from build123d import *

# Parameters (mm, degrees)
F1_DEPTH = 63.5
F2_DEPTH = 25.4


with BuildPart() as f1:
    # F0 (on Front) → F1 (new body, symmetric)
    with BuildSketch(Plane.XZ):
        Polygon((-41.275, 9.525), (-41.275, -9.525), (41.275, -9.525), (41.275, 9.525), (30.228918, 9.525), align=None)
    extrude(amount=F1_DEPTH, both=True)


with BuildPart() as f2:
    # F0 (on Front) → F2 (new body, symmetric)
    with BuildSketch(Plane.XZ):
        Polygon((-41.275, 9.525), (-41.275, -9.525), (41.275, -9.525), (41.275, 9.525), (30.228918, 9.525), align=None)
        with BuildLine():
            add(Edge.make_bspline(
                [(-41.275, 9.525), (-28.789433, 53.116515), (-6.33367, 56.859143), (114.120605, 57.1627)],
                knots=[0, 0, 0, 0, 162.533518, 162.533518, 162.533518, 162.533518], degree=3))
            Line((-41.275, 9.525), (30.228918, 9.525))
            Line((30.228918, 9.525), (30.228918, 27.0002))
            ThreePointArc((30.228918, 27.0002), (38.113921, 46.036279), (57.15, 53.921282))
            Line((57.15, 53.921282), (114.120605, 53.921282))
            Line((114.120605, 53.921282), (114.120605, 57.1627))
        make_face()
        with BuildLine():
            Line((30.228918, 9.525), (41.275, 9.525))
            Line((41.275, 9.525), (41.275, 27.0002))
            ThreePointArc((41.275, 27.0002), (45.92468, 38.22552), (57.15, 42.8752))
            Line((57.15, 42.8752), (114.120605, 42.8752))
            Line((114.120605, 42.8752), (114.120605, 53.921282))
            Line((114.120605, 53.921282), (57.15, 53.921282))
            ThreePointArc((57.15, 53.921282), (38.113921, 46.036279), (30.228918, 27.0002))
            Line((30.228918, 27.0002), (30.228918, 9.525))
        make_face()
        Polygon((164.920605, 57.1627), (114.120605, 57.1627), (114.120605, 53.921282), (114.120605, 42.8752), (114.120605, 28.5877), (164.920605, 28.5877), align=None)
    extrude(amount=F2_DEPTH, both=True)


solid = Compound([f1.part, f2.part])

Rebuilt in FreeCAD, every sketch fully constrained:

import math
import FreeCAD as App
import Part
import Sketcher

V = App.Vector
Q = App.Units.Quantity

doc = App.newDocument("Part")
params = doc.addObject("Spreadsheet::Sheet", "Params")
for row, (alias, value) in enumerate([
    ("sketch1_width", "3.25 in"),
    ("sketch1_height", "0.75 in"),
    ("pad1_length", "5 in"),
    ("sketch2_width", "2 in"),
    ("sketch2_radius", "0.625 in"),
    ("sketch2_width2", "3.25 in"),
    ("sketch2_height", "0.75 in"),
    ("sketch2_height2", "1.438 in"),
    ("pad2_length", "2 in"),
], start=1):
    params.set(f"A{row}", alias)
    params.set(f"B{row}", "=" + value)
    params.setAlias(f"B{row}", alias)

body = doc.addObject("PartDesign::Body", "Body")

# Sketch on XZ plane
sketch1 = doc.addObject("Sketcher::SketchObject", "Sketch")
body.addObject(sketch1)
sketch1.AttachmentSupport = (doc.XZ_Plane, [""])
sketch1.MapMode = "FlatFace"
sketch1.addGeometry(Part.LineSegment(V(-41, 10, 0), V(-41, -10, 0)), False)
sketch1.addGeometry(Part.LineSegment(V(-41, -10, 0), V(41, -10, 0)), False)
sketch1.addGeometry(Part.LineSegment(V(41, -10, 0), V(41, 10, 0)), False)
sketch1.addGeometry(Part.LineSegment(V(41, 10, 0), V(-41, 10, 0)), False)
sketch1.addConstraint(Sketcher.Constraint("Coincident", 0, 2, 1, 1))
sketch1.addConstraint(Sketcher.Constraint("Coincident", 1, 2, 2, 1))
sketch1.addConstraint(Sketcher.Constraint("Coincident", 2, 2, 3, 1))
sketch1.addConstraint(Sketcher.Constraint("Coincident", 3, 2, 0, 1))
sketch1.addConstraint(Sketcher.Constraint("Vertical", 0))
sketch1.addConstraint(Sketcher.Constraint("Horizontal", 1))
sketch1.addConstraint(Sketcher.Constraint("Vertical", 2))
sketch1.addConstraint(Sketcher.Constraint("Horizontal", 3))
sketch1.addConstraint(Sketcher.Constraint("Symmetric", 0, 2, 2, 2, -1, 1))
sketch1.addConstraint(Sketcher.Constraint("DistanceX", 1, 1, 1, 2, Q("3.25 in")))
sketch1.addConstraint(Sketcher.Constraint("DistanceY", 0, 2, 0, 1, Q("0.75 in")))
sketch1.setExpression("Constraints[9]", "Params.sketch1_width")
sketch1.setExpression("Constraints[10]", "Params.sketch1_height")
pad1 = doc.addObject("PartDesign::Pad", "Pad")
body.addObject(pad1)
pad1.Profile = sketch1
pad1.setExpression("Length", "Params.pad1_length")
pad1.Midplane = True
body2 = doc.addObject("PartDesign::Body", "Body001")

# Sketch on XZ plane
sketch2 = doc.addObject("Sketcher::SketchObject", "Sketch001")
body2.addObject(sketch2)
sketch2.AttachmentSupport = (doc.getObject("XZ_Plane001"), [""])
sketch2.MapMode = "FlatFace"
sketch2.addGeometry(Part.LineSegment(V(-41.275, 9.525, 0), V(-41.275, -9.525, 0)), False)
sketch2.addGeometry(Part.LineSegment(V(-41.275, -9.525, 0), V(41.275, -9.525, 0)), False)
sketch2.addGeometry(Part.LineSegment(V(41.275, -9.525, 0), V(41.275, 27.0002, 0)), False)
sketch2.addGeometry(Part.ArcOfCircle(Part.Circle(V(57.150001, 27.000199, 0), V(0, 0, 1), 15.875001), math.radians(90.000002), math.radians(179.999998)), False)
sketch2.addGeometry(Part.LineSegment(V(57.15, 42.8752, 0), V(114.120605, 42.8752, 0)), False)
sketch2.addGeometry(Part.LineSegment(V(114.120605, 42.8752, 0), V(114.120605, 28.5877, 0)), False)
sketch2.addGeometry(Part.LineSegment(V(114.120605, 28.5877, 0), V(164.920605, 28.5877, 0)), False)
sketch2.addGeometry(Part.LineSegment(V(164.920605, 28.5877, 0), V(164.920605, 57.1627, 0)), False)
sketch2.addGeometry(Part.LineSegment(V(164.920605, 57.1627, 0), V(114.120605, 57.1627, 0)), False)
sketch2.addGeometry(Part.BSplineCurve([V(-41.275, 9.525, 0), V(-28.789433, 53.116515, 0), V(-6.33367, 56.859143, 0), V(114.120605, 57.1627, 0)], [4, 4], [0, 162.533518], False, 3, [1, 1, 1, 1], False), False)
sketch2.addConstraint(Sketcher.Constraint("Block", 9))
sketch2.addConstraint(Sketcher.Constraint("Coincident", 0, 2, 1, 1))
sketch2.addConstraint(Sketcher.Constraint("Coincident", 1, 2, 2, 1))
sketch2.addConstraint(Sketcher.Constraint("Tangent", 2, 2, 3, 2))
sketch2.addConstraint(Sketcher.Constraint("Tangent", 3, 1, 4, 1))
sketch2.addConstraint(Sketcher.Constraint("Coincident", 4, 2, 5, 1))
sketch2.addConstraint(Sketcher.Constraint("Coincident", 5, 2, 6, 1))
sketch2.addConstraint(Sketcher.Constraint("Coincident", 6, 2, 7, 1))
sketch2.addConstraint(Sketcher.Constraint("Coincident", 7, 2, 8, 1))
sketch2.addConstraint(Sketcher.Constraint("Coincident", 8, 2, 9, 2))
sketch2.addConstraint(Sketcher.Constraint("Coincident", 9, 1, 0, 1))
sketch2.addConstraint(Sketcher.Constraint("Vertical", 0))
sketch2.addConstraint(Sketcher.Constraint("Horizontal", 1))
sketch2.addConstraint(Sketcher.Constraint("Vertical", 2))
sketch2.addConstraint(Sketcher.Constraint("Horizontal", 4))
sketch2.addConstraint(Sketcher.Constraint("Vertical", 5))
sketch2.addConstraint(Sketcher.Constraint("Horizontal", 6))
sketch2.addConstraint(Sketcher.Constraint("Vertical", 7))
sketch2.addConstraint(Sketcher.Constraint("Horizontal", 8))
sketch2.addConstraint(Sketcher.Constraint("Vertical", 5, 2, 8, 2))
sketch2.addConstraint(Sketcher.Constraint("DistanceX", 6, 1, 6, 2, Q("2 in")))
sketch2.addConstraint(Sketcher.Constraint("Radius", 3, Q("0.625 in")))
sketch2.addConstraint(Sketcher.Constraint("DistanceX", 1, 1, 1, 2, Q("3.25 in")))
sketch2.addConstraint(Sketcher.Constraint("DistanceY", 0, 2, 0, 1, Q("0.75 in")))
sketch2.addConstraint(Sketcher.Constraint("DistanceY", 2, 1, 2, 2, Q("1.438 in")))
sketch2.addConstraint(Sketcher.Constraint("DistanceY", 5, 2, 5, 1, Q("0.5625 in")))
sketch2.setExpression("Constraints[20]", "Params.sketch2_width")
sketch2.setExpression("Constraints[21]", "Params.sketch2_radius")
sketch2.setExpression("Constraints[22]", "Params.sketch2_width2")
sketch2.setExpression("Constraints[23]", "Params.sketch2_height")
sketch2.setExpression("Constraints[24]", "Params.sketch2_height2")
pad2 = doc.addObject("PartDesign::Pad", "Pad001")
body2.addObject(pad2)
pad2.Profile = sketch2
pad2.setExpression("Length", "Params.pad2_length")
pad2.Midplane = True

doc.recompute()
